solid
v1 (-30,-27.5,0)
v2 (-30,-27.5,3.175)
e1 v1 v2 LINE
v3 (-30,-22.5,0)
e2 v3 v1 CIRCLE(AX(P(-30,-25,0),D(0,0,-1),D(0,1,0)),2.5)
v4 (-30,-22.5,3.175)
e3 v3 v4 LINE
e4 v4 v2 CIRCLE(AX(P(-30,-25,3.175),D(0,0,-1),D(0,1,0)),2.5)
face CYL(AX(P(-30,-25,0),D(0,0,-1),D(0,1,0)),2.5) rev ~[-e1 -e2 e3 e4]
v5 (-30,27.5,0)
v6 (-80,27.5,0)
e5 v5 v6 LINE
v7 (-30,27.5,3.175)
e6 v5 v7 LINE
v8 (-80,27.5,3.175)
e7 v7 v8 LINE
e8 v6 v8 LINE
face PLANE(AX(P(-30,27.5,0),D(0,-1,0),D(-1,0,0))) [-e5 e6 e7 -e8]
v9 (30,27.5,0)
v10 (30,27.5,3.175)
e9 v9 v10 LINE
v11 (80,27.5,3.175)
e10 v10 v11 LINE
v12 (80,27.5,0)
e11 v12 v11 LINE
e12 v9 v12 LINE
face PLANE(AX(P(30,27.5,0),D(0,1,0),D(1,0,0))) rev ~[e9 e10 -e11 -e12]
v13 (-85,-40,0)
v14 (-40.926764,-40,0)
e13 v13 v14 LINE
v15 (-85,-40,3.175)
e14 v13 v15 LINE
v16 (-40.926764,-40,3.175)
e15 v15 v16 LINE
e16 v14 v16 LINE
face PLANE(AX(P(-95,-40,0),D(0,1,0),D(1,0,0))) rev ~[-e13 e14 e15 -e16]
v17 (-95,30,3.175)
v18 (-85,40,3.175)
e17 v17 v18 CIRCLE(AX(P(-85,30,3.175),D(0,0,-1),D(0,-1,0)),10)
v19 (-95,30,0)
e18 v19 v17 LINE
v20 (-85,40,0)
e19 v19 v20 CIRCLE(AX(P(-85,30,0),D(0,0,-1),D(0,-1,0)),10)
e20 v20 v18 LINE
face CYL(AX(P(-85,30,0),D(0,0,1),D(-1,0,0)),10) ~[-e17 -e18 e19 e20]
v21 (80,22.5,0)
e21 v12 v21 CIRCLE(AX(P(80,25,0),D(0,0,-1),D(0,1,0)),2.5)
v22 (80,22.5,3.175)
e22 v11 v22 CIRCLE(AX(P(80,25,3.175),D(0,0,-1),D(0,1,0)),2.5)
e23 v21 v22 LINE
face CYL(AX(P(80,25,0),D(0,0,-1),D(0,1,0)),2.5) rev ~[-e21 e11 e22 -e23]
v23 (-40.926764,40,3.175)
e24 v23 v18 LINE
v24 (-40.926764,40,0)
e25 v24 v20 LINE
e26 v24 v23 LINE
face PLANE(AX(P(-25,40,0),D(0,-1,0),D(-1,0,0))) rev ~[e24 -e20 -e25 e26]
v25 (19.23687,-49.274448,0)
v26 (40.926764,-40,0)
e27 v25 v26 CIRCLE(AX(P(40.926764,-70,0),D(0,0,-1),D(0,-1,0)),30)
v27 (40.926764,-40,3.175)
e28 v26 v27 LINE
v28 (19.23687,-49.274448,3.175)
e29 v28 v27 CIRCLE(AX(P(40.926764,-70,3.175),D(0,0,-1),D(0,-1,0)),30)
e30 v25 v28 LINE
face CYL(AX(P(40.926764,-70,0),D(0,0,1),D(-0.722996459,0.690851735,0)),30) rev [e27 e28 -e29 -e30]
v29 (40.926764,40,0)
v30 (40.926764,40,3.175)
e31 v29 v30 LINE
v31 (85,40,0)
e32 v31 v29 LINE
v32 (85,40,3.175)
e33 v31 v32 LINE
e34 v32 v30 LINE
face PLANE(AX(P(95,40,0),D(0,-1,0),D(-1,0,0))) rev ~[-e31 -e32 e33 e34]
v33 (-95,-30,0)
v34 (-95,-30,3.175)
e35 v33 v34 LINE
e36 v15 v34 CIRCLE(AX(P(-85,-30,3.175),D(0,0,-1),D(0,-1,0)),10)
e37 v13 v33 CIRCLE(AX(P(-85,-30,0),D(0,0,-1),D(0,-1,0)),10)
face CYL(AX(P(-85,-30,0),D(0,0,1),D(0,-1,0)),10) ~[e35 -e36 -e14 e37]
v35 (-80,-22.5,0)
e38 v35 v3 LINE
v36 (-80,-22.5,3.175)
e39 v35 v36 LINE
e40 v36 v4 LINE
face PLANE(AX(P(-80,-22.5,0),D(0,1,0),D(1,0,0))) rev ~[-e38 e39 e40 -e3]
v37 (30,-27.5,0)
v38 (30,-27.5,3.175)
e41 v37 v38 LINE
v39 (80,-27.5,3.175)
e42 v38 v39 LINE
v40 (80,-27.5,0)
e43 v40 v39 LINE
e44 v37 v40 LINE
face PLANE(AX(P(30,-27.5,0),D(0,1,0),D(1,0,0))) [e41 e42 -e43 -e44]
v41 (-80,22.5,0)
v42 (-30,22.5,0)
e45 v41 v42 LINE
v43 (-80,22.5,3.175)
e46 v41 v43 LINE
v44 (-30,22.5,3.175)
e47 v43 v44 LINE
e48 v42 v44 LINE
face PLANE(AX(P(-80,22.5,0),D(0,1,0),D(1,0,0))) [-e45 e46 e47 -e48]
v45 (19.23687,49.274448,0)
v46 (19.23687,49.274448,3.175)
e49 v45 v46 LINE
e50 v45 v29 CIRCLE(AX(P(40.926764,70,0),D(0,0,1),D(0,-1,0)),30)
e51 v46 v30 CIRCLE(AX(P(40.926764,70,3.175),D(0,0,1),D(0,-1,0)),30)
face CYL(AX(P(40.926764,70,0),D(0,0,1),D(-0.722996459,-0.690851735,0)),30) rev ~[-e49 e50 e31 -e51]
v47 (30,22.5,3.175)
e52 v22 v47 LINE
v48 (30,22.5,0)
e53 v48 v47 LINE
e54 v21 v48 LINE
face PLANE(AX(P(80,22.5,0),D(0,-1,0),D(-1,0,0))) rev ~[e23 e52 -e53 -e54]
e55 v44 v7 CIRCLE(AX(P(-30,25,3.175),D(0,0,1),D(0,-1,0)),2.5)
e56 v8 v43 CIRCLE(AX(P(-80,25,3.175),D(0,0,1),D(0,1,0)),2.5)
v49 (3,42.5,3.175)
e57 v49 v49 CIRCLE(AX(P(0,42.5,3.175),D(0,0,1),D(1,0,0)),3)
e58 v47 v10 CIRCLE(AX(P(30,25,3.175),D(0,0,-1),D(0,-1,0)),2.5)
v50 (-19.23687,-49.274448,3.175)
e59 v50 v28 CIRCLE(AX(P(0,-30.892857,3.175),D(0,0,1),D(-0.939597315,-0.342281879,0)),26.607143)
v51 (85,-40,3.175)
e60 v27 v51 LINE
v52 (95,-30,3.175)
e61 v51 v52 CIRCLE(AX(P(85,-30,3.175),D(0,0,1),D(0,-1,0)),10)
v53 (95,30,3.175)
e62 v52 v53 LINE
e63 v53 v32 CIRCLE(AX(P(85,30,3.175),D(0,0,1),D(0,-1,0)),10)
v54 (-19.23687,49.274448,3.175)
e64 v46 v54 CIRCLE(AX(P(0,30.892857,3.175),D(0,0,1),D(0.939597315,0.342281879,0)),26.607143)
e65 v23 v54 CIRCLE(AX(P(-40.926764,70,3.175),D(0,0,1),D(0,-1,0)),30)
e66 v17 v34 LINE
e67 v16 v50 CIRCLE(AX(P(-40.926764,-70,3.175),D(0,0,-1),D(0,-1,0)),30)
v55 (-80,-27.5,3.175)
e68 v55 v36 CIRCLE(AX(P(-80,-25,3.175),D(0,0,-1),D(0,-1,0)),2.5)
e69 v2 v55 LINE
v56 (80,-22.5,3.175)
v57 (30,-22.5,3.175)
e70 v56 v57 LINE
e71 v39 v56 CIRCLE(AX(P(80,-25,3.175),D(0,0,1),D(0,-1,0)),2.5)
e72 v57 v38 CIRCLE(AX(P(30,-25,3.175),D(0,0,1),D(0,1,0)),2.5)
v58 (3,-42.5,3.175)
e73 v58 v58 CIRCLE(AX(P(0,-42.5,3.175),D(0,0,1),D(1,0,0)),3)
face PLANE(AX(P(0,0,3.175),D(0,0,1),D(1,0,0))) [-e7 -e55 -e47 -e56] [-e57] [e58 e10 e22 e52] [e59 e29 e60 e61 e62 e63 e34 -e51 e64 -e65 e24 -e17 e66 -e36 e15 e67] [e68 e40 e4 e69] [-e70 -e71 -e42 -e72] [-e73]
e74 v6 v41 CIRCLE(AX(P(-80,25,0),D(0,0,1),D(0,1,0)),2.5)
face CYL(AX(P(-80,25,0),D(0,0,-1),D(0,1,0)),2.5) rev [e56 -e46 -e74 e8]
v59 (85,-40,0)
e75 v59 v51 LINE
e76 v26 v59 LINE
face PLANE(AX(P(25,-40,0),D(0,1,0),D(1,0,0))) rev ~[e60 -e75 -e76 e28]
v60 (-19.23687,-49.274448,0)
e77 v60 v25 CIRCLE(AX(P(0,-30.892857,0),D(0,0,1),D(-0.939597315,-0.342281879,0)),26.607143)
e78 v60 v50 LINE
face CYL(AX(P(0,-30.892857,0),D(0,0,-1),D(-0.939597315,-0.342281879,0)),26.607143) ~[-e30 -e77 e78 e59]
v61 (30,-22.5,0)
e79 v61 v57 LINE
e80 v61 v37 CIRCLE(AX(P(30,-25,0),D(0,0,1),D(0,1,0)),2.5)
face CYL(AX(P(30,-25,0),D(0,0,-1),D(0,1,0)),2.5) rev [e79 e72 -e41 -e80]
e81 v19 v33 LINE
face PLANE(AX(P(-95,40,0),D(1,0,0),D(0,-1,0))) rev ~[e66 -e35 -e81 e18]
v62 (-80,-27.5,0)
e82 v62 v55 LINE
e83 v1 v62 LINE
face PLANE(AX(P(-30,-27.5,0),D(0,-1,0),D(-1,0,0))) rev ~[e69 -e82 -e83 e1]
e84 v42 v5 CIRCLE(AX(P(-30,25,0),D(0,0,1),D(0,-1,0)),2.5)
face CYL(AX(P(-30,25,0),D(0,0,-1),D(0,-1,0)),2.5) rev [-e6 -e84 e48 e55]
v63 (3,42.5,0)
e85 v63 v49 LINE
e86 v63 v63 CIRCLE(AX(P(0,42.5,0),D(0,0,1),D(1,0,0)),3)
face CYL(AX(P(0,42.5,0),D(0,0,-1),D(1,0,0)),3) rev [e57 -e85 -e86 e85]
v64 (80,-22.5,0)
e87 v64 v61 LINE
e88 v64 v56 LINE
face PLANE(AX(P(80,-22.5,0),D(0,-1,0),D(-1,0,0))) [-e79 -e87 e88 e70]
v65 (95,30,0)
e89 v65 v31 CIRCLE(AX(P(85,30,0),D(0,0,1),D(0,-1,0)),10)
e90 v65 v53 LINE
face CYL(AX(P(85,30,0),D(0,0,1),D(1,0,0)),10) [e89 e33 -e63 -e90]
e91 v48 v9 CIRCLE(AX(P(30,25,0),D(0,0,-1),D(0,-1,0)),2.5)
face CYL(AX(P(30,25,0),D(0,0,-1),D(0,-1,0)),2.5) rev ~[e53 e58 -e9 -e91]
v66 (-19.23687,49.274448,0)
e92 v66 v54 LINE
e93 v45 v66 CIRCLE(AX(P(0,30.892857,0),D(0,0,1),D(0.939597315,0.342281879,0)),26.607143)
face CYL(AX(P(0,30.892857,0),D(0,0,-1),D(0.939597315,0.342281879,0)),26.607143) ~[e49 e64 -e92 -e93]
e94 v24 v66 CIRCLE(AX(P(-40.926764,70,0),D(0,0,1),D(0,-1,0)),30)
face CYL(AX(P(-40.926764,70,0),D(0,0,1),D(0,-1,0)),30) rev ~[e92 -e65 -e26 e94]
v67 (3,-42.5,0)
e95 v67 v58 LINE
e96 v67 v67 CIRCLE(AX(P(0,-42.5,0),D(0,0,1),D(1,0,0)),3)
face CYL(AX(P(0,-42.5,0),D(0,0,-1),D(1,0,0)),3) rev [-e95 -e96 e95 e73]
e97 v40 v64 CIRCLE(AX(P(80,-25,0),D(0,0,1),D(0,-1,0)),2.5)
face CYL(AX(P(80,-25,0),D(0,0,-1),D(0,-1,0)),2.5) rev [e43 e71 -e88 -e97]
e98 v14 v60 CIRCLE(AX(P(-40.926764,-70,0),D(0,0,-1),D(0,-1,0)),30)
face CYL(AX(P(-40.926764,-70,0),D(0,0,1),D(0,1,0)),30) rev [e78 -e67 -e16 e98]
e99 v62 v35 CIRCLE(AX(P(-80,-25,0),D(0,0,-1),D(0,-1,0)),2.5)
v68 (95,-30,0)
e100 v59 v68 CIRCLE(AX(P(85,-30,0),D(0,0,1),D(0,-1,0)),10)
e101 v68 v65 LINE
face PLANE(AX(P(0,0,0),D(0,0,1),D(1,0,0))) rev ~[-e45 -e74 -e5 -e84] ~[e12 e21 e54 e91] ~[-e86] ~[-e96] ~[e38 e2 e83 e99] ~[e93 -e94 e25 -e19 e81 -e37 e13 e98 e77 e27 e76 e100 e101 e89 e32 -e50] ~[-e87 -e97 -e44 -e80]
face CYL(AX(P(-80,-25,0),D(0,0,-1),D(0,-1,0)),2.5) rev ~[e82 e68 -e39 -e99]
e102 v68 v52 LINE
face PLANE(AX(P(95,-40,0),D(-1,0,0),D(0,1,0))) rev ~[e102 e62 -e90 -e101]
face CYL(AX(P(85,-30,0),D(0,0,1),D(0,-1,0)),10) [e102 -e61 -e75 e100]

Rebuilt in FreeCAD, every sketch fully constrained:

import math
import FreeCAD as App
import Part
import Sketcher

V = App.Vector


def edges_at(feature, points):
    """Names of the edges that pass closest to the given points."""
    edges = feature.Shape.Edges
    near = lambda p: min(range(len(edges)), key=lambda i: edges[i].distToShape(Part.Vertex(*p))[0])
    return sorted({f"Edge{near(p) + 1}" for p in points})

doc = App.newDocument("Part")
params = doc.addObject("Spreadsheet::Sheet", "Params")
for row, (alias, value) in enumerate([
    ("sketch1_diameter", "6 mm"),
    ("sketch1_radius", "2.5 mm"),
    ("sketch1_width", "70 mm"),
    ("sketch1_width2", "50 mm"),
    ("sketch1_height", "80 mm"),
    ("pad1_length", "3.175 mm"),
    ("fillet_radius", "10 mm"),
    ("fillet2_radius", "30 mm"),
], start=1):
    params.set(f"A{row}", alias)
    params.set(f"B{row}", "=" + value)
    params.setAlias(f"B{row}", alias)

body = doc.addObject("PartDesign::Body", "Body")

sketch1 = doc.addObject("Sketcher::SketchObject", "Sketch")
body.addObject(sketch1)
sketch1.AttachmentSupport = (doc.XY_Plane, [""])
sketch1.MapMode = "FlatFace"
sketch1.addGeometry(Part.LineSegment(V(-95, -40, 0), V(-25, -40, 0)), False)
sketch1.addGeometry(Part.ArcOfCircle(Part.Circle(V(0, -30.892857, 0), V(0, 0, 1), 26.607143), math.radians(-159.98404), math.radians(-20.01596)), False)
sketch1.addGeometry(Part.LineSegment(V(25, -40, 0), V(95, -40, 0)), False)
sketch1.addGeometry(Part.LineSegment(V(95, -40, 0), V(95, 40, 0)), False)
sketch1.addGeometry(Part.LineSegment(V(95, 40, 0), V(25, 40, 0)), False)
sketch1.addGeometry(Part.ArcOfCircle(Part.Circle(V(0, 30.892857, 0), V(0, 0, 1), 26.607143), math.radians(20.01596), math.radians(159.98404)), False)
sketch1.addGeometry(Part.LineSegment(V(-25, 40, 0), V(-95, 40, 0)), False)
sketch1.addGeometry(Part.LineSegment(V(-95, 40, 0), V(-95, -40, 0)), False)
sketch1.addGeometry(Part.ArcOfCircle(Part.Circle(V(-30, -25, 0), V(0, 0, 1), 2.5), math.radians(-90), math.radians(90)), False)
sketch1.addGeometry(Part.LineSegment(V(-30, -27.5, 0), V(-80, -27.5, 0)), False)
sketch1.addGeometry(Part.ArcOfCircle(Part.Circle(V(-80, -25, 0), V(0, 0, 1), 2.5), math.radians(90), math.radians(270)), False)
sketch1.addGeometry(Part.LineSegment(V(-80, -22.5, 0), V(-30, -22.5, 0)), False)
sketch1.addGeometry(Part.Circle(V(0, -42.5, 0), V(0, 0, 1), 3), False)
sketch1.addGeometry(Part.LineSegment(V(80, -27.5, 0), V(30, -27.5, 0)), False)
sketch1.addGeometry(Part.ArcOfCircle(Part.Circle(V(30, -25, 0), V(0, 0, 1), 2.5), math.radians(90), math.radians(270)), False)
sketch1.addGeometry(Part.LineSegment(V(30, -22.5, 0), V(80, -22.5, 0)), False)
sketch1.addGeometry(Part.ArcOfCircle(Part.Circle(V(80, -25, 0), V(0, 0, 1), 2.5), math.radians(-90), math.radians(90)), False)
sketch1.addGeometry(Part.LineSegment(V(-80, 27.5, 0), V(-30, 27.5, 0)), False)
sketch1.addGeometry(Part.ArcOfCircle(Part.Circle(V(-30, 25, 0), V(0, 0, 1), 2.5), math.radians(-90), math.radians(90)), False)
sketch1.addGeometry(Part.LineSegment(V(-30, 22.5, 0), V(-80, 22.5, 0)), False)
sketch1.addGeometry(Part.ArcOfCircle(Part.Circle(V(-80, 25, 0), V(0, 0, 1), 2.5), math.radians(90), math.radians(270)), False)
sketch1.addGeometry(Part.Circle(V(0, 42.5, 0), V(0, 0, 1), 3), False)
sketch1.addGeometry(Part.ArcOfCircle(Part.Circle(V(30, 25, 0), V(0, 0, 1), 2.5), math.radians(90), math.radians(270)), False)
sketch1.addGeometry(Part.LineSegment(V(30, 27.5, 0), V(80, 27.5, 0)), False)
sketch1.addGeometry(Part.ArcOfCircle(Part.Circle(V(80, 25, 0), V(0, 0, 1), 2.5), math.radians(-90), math.radians(90)), False)
sketch1.addGeometry(Part.LineSegment(V(80, 22.5, 0), V(30, 22.5, 0)), False)
sketch1.addConstraint(Sketcher.Constraint("Coincident", 0, 2, 1, 1))
sketch1.addConstraint(Sketcher.Constraint("Coincident", 1, 2, 2, 1))
sketch1.addConstraint(Sketcher.Constraint("Coincident", 2, 2, 3, 1))
sketch1.addConstraint(Sketcher.Constraint("Coincident", 3, 2, 4, 1))
sketch1.addConstraint(Sketcher.Constraint("Coincident", 4, 2, 5, 1))
sketch1.addConstraint(Sketcher.Constraint("Coincident", 5, 2, 6, 1))
sketch1.addConstraint(Sketcher.Constraint("Coincident", 6, 2, 7, 1))
sketch1.addConstraint(Sketcher.Constraint("Coincident", 7, 2, 0, 1))
sketch1.addConstraint(Sketcher.Constraint("Tangent", 8, 1, 9, 1))
sketch1.addConstraint(Sketcher.Constraint("Tangent", 9, 2, 10, 2))
sketch1.addConstraint(Sketcher.Constraint("Tangent", 10, 1, 11, 1))
sketch1.addConstraint(Sketcher.Constraint("Tangent", 11, 2, 8, 2))
sketch1.addConstraint(Sketcher.Constraint("Tangent", 13, 2, 14, 2))
sketch1.addConstraint(Sketcher.Constraint("Tangent", 14, 1, 15, 1))
sketch1.addConstraint(Sketcher.Constraint("Tangent", 15, 2, 16, 2))
sketch1.addConstraint(Sketcher.Constraint("Tangent", 16, 1, 13, 1))
sketch1.addConstraint(Sketcher.Constraint("Tangent", 17, 2, 18, 2))
sketch1.addConstraint(Sketcher.Constraint("Tangent", 18, 1, 19, 1))
sketch1.addConstraint(Sketcher.Constraint("Tangent", 19, 2, 20, 2))
sketch1.addConstraint(Sketcher.Constraint("Tangent", 20, 1, 17, 1))
sketch1.addConstraint(Sketcher.Constraint("Tangent", 22, 1, 23, 1))
sketch1.addConstraint(Sketcher.Constraint("Tangent", 23, 2, 24, 2))
sketch1.addConstraint(Sketcher.Constraint("Tangent", 24, 1, 25, 1))
sketch1.addConstraint(Sketcher.Constraint("Tangent", 25, 2, 22, 2))
sketch1.addConstraint(Sketcher.Constraint("Horizontal", 0))
sketch1.addConstraint(Sketcher.Constraint("Horizontal", 2))
sketch1.addConstraint(Sketcher.Constraint("Vertical", 3))
sketch1.addConstraint(Sketcher.Constraint("Horizontal", 4))
sketch1.addConstraint(Sketcher.Constraint("Horizontal", 6))
sketch1.addConstraint(Sketcher.Constraint("Vertical", 7))
sketch1.addConstraint(Sketcher.Constraint("Horizontal", 9))
sketch1.addConstraint(Sketcher.Constraint("Horizontal", 11))
sketch1.addConstraint(Sketcher.Constraint("Horizontal", 13))
sketch1.addConstraint(Sketcher.Constraint("Horizontal", 15))
sketch1.addConstraint(Sketcher.Constraint("Horizontal", 17))
sketch1.addConstraint(Sketcher.Constraint("Horizontal", 19))
sketch1.addConstraint(Sketcher.Constraint("Horizontal", 23))
sketch1.addConstraint(Sketcher.Constraint("Horizontal", 25))
sketch1.addConstraint(Sketcher.Constraint("Equal", 1, 5))
sketch1.addConstraint(Sketcher.Constraint("Equal", 10, 14))
sketch1.addConstraint(Sketcher.Constraint("Equal", 16, 18))
sketch1.addConstraint(Sketcher.Constraint("Equal", 12, 21))
sketch1.addConstraint(Sketcher.Constraint("Equal", 20, 22))
sketch1.addConstraint(Sketcher.Constraint("Symmetric", 1, 3, 5, 3, -1, 1))
sketch1.addConstraint(Sketcher.Constraint("Symmetric", 14, 3, 18, 3, -1, 1))
sketch1.addConstraint(Sketcher.Constraint("Symmetric", 12, 3, 21, 3, -1, 1))
sketch1.addConstraint(Sketcher.Constraint("Symmetric", 8, 3, 22, 3, -1, 1))
sketch1.addConstraint(Sketcher.Constraint("Symmetric", 2, 2, 6, 2, -1, 1))
sketch1.addConstraint(Sketcher.Constraint("Symmetric", 8, 3, 14, 3, -2))
sketch1.addConstraint(Sketcher.Constraint("Symmetric", 0, 2, 1, 2, -2))
sketch1.addConstraint(Sketcher.Constraint("PointOnObject", 12, 3, -2))
sketch1.addConstraint(Sketcher.Constraint("Horizontal", 4, 2, 5, 2))
sketch1.addConstraint(Sketcher.Constraint("Vertical", 10, 3, 20, 3))
sketch1.addConstraint(Sketcher.Constraint("Vertical", 16, 3, 24, 3))
sketch1.addConstraint(Sketcher.Constraint("Equal", 11, 13))
sketch1.addConstraint(Sketcher.Constraint("Diameter", 12, 6.0))
sketch1.addConstraint(Sketcher.Constraint("Radius", 8, 2.5))
sketch1.addConstraint(Sketcher.Constraint("DistanceX", 0, 1, 0, 2, 70.0))
sketch1.addConstraint(Sketcher.Constraint("DistanceX", 9, 2, 9, 1, 50.0))
sketch1.addConstraint(Sketcher.Constraint("DistanceY", 3, 1, 3, 2, 80.0))
sketch1.addConstraint(Sketcher.Constraint("DistanceX", 8, 3, -1, 1, 30.0))
sketch1.addConstraint(Sketcher.Constraint("DistanceY", 8, 3, -1, 1, 25.0))
sketch1.addConstraint(Sketcher.Constraint("DistanceX", 0, 2, -1, 1, 25.0))
sketch1.addConstraint(Sketcher.Constraint("DistanceY", 12, 3, 8, 1, 15.0))
sketch1.addConstraint(Sketcher.Constraint("Radius", 1, 26.607143))
sketch1.setExpression("Constraints[55]", "Params.sketch1_diameter")
sketch1.setExpression("Constraints[56]", "Params.sketch1_radius")
sketch1.setExpression("Constraints[57]", "Params.sketch1_width")
sketch1.setExpression("Constraints[58]", "Params.sketch1_width2")
sketch1.setExpression("Constraints[59]", "Params.sketch1_height")
pad1 = doc.addObject("PartDesign::Pad", "Pad")
body.addObject(pad1)
pad1.Profile = sketch1
pad1.setExpression("Length", "Params.pad1_length")
doc.recompute()

fillet = doc.addObject("PartDesign::Fillet", "Fillet")
body.addObject(fillet)
fillet.Base = (pad1, edges_at(pad1, [
    (95, 40, 1.587),
    (95, -40, 1.587),
    (-95, -40, 1.587),
    (-95, 40, 1.587),
]))
fillet.setExpression("Radius", "Params.fillet_radius")
doc.recompute()

fillet2 = doc.addObject("PartDesign::Fillet", "Fillet001")
body.addObject(fillet2)
fillet2.Base = (fillet, edges_at(fillet, [
    (25, -40, 1.587),
    (-25, -40, 1.587),
    (-25, 40, 1.587),
    (25, 40, 1.587),
]))
fillet2.setExpression("Radius", "Params.fillet2_radius")

doc.recompute()
